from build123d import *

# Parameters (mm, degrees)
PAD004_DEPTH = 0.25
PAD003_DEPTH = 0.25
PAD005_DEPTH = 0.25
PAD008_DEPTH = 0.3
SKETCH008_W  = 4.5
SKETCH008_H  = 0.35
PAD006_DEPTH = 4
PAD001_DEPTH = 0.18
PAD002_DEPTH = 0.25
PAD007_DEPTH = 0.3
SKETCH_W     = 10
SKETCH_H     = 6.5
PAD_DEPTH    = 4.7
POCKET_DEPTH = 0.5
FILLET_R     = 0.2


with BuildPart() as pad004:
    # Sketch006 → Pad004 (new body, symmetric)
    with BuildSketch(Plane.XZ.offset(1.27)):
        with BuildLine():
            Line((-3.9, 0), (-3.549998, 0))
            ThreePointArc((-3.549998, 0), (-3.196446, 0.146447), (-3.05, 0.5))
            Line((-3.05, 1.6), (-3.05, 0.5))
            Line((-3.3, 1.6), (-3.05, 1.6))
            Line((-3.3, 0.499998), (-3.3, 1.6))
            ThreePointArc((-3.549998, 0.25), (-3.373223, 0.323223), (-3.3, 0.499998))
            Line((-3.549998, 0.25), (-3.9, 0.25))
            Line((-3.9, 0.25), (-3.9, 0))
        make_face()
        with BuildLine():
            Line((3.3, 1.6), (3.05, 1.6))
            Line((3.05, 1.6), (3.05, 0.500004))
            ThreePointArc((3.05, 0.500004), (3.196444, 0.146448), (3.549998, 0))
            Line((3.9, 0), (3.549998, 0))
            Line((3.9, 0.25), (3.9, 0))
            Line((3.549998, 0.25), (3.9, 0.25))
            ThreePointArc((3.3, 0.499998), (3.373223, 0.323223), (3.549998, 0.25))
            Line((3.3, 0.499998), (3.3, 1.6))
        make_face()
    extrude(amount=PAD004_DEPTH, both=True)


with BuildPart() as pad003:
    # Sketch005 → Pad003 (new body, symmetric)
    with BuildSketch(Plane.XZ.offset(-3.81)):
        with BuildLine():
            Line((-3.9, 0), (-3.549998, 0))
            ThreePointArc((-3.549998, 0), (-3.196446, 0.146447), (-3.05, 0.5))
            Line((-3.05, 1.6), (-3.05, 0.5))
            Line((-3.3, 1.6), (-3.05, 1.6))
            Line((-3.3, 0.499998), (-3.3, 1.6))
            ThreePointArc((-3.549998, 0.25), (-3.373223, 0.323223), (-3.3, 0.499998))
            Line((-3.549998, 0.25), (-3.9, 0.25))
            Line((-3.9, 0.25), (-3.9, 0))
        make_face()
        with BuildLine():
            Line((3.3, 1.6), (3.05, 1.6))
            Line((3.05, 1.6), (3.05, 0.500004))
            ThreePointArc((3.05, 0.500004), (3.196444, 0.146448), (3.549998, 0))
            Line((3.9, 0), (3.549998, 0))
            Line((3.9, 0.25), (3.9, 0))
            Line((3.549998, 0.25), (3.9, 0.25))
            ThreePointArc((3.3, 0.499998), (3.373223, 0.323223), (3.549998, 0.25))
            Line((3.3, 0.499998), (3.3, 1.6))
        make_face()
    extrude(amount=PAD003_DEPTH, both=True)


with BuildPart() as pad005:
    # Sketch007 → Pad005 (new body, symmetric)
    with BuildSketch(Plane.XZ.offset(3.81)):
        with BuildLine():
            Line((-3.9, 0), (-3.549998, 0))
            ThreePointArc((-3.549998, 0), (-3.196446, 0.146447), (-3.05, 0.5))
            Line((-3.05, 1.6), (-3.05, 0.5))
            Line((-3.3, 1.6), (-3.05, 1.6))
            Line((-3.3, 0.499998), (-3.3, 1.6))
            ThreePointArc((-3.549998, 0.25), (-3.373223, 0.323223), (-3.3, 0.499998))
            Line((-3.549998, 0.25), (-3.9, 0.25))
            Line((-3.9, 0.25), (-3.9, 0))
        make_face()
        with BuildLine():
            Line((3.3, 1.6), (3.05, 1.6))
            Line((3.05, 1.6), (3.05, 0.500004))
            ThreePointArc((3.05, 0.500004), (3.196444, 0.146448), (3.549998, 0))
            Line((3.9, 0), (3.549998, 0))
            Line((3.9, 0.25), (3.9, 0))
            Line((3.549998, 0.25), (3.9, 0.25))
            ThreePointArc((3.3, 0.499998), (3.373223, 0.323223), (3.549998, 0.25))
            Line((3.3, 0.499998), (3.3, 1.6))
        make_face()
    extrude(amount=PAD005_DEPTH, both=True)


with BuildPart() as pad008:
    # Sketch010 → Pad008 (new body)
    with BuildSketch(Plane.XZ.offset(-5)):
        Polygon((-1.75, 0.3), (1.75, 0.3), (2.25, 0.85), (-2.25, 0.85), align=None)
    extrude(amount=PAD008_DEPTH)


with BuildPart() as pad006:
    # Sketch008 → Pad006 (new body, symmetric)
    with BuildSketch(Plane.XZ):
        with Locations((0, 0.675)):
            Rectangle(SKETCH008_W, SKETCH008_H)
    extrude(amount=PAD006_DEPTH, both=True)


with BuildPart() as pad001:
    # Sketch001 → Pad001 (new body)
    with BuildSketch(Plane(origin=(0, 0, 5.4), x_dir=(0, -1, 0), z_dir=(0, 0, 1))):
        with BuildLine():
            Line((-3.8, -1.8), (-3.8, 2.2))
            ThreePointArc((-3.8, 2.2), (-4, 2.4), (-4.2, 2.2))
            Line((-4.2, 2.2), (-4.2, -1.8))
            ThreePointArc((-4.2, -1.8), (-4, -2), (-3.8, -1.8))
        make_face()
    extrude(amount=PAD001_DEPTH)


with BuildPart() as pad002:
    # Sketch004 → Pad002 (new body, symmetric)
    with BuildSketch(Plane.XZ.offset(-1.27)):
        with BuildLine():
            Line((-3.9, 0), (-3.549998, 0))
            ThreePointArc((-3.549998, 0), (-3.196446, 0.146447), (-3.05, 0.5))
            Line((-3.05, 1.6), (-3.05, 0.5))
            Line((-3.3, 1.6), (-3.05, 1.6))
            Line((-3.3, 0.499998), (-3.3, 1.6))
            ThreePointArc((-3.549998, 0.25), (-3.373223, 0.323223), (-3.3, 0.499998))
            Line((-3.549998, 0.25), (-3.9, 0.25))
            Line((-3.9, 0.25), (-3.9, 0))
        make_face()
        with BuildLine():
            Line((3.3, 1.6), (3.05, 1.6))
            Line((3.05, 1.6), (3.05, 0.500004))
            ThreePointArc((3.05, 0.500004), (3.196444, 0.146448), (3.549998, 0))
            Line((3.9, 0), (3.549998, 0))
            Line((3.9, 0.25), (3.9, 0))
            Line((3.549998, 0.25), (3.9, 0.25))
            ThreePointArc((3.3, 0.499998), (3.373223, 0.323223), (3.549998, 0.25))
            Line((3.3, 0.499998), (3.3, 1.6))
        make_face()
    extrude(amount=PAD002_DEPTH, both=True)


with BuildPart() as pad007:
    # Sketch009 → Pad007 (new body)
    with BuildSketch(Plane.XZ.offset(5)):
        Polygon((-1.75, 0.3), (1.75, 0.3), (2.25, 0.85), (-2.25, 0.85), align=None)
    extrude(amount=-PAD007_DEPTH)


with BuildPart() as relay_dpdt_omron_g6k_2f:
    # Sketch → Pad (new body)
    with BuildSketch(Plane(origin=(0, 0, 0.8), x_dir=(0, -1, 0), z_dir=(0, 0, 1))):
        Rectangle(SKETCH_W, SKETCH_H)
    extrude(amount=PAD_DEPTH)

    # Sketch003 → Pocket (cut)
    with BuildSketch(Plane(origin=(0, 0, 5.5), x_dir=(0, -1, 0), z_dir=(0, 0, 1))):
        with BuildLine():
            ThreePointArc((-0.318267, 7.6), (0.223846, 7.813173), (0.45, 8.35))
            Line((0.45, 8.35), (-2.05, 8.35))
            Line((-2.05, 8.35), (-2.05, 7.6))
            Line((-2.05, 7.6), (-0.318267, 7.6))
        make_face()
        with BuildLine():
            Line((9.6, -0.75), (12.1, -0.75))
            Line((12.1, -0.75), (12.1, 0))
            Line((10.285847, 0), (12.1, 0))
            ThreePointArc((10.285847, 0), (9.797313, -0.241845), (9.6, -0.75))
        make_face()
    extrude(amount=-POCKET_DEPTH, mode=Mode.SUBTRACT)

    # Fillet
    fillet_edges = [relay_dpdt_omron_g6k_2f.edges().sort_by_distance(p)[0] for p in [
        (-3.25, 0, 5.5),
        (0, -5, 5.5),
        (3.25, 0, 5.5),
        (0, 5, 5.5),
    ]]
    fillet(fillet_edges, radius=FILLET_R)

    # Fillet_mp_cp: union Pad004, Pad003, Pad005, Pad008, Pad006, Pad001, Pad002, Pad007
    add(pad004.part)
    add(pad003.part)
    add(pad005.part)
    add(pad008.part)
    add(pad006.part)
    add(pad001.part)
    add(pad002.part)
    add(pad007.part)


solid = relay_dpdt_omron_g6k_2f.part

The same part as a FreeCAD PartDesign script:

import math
import FreeCAD as App
import Part
import Sketcher
from FreeCAD import Vector


def edges_at(feature, points):
    """Names of the edges that pass closest to the given points."""
    edges = feature.Shape.Edges
    near = lambda p: min(range(len(edges)), key=lambda i: edges[i].distToShape(Part.Vertex(*p))[0])
    return sorted({f"Edge{near(p) + 1}" for p in points})


def add_polygon(sketch, points):
    """Adds a closed chain of lines whose ends are joined by coincident constraints."""
    first, n = sketch.GeometryCount, len(points)
    for a, b in zip(points, points[1:] + points[:1]):
        sketch.addGeometry(Part.LineSegment(App.Vector(*a, 0), App.Vector(*b, 0)), False)
    for i in range(n):
        sketch.addConstraint(Sketcher.Constraint("Coincident", first + i, 2, first + (i + 1) % n, 1))

doc = App.newDocument("Part")
body = doc.addObject("PartDesign::Body", "Body")
body.AllowCompound = True

sketch1 = body.newObject("Sketcher::SketchObject", "Sketch")
sketch1.AttachmentSupport = (doc.getObject("XZ_Plane"), [""])
sketch1.MapMode = "FlatFace"
sketch1.AttachmentOffset = App.Placement(Vector(0, 0, 1.27), App.Rotation())
sketch1.addGeometry(Part.LineSegment(Vector(-3.9, 0, 0), Vector(-3.55, 0, 0)), False)
sketch1.addGeometry(Part.ArcOfCircle(Part.Circle(Vector(-3.55, 0.5, 0), Vector(0, 0, 1), 0.5), math.radians(-90), math.radians(0)), False)
sketch1.addGeometry(Part.LineSegment(Vector(-3.05, 0.5, 0), Vector(-3.05, 1.6, 0)), False)
sketch1.addGeometry(Part.LineSegment(Vector(-3.05, 1.6, 0), Vector(-3.3, 1.6, 0)), False)
sketch1.addGeometry(Part.LineSegment(Vector(-3.3, 1.6, 0), Vector(-3.3, 0.5, 0)), False)
sketch1.addGeometry(Part.ArcOfCircle(Part.Circle(Vector(-3.55, 0.5, 0), Vector(0, 0, 1), 0.25), math.radians(-90), math.radians(0)), False)
sketch1.addGeometry(Part.LineSegment(Vector(-3.55, 0.25, 0), Vector(-3.9, 0.25, 0)), False)
sketch1.addGeometry(Part.LineSegment(Vector(-3.9, 0.25, 0), Vector(-3.9, 0, 0)), False)
sketch1.addGeometry(Part.LineSegment(Vector(3.3, 1.6, 0), Vector(3.05, 1.6, 0)), False)
sketch1.addGeometry(Part.LineSegment(Vector(3.05, 1.6, 0), Vector(3.05, 0.5, 0)), False)
sketch1.addGeometry(Part.ArcOfCircle(Part.Circle(Vector(3.55, 0.5, 0), Vector(0, 0, 1), 0.5), math.radians(180), math.radians(270)), False)
sketch1.addGeometry(Part.LineSegment(Vector(3.55, 0, 0), Vector(3.9, 0, 0)), False)
sketch1.addGeometry(Part.LineSegment(Vector(3.9, 0, 0), Vector(3.9, 0.25, 0)), False)
sketch1.addGeometry(Part.LineSegment(Vector(3.9, 0.25, 0), Vector(3.55, 0.25, 0)), False)
sketch1.addGeometry(Part.ArcOfCircle(Part.Circle(Vector(3.55, 0.5, 0), Vector(0, 0, 1), 0.25), math.radians(-180), math.radians(-90)), False)
sketch1.addGeometry(Part.LineSegment(Vector(3.3, 0.5, 0), Vector(3.3, 1.6, 0)), False)
sketch1.addConstraint(Sketcher.Constraint("Coincident", 0, 2, 1, 1))
sketch1.addConstraint(Sketcher.Constraint("Tangent", 1, 2, 2, 1))
sketch1.addConstraint(Sketcher.Constraint("Coincident", 2, 2, 3, 1))
sketch1.addConstraint(Sketcher.Constraint("Coincident", 3, 2, 4, 1))
sketch1.addConstraint(Sketcher.Constraint("Coincident", 4, 2, 5, 2))
sketch1.addConstraint(Sketcher.Constraint("Coincident", 5, 1, 6, 1))
sketch1.addConstraint(Sketcher.Constraint("Coincident", 6, 2, 7, 1))
sketch1.addConstraint(Sketcher.Constraint("Coincident", 7, 2, 0, 1))
sketch1.addConstraint(Sketcher.Constraint("Coincident", 8, 2, 9, 1))
sketch1.addConstraint(Sketcher.Constraint("Coincident", 9, 2, 10, 1))
sketch1.addConstraint(Sketcher.Constraint("Tangent", 10, 2, 11, 1))
sketch1.addConstraint(Sketcher.Constraint("Coincident", 11, 2, 12, 1))
sketch1.addConstraint(Sketcher.Constraint("Coincident", 12, 2, 13, 1))
sketch1.addConstraint(Sketcher.Constraint("Coincident", 13, 2, 14, 2))
sketch1.addConstraint(Sketcher.Constraint("Coincident", 14, 1, 15, 1))
sketch1.addConstraint(Sketcher.Constraint("Coincident", 15, 2, 8, 1))
sketch1.addConstraint(Sketcher.Constraint("Horizontal", 0))
sketch1.addConstraint(Sketcher.Constraint("Vertical", 2))
sketch1.addConstraint(Sketcher.Constraint("Horizontal", 3))
sketch1.addConstraint(Sketcher.Constraint("Vertical", 4))
sketch1.addConstraint(Sketcher.Constraint("Horizontal", 6))
sketch1.addConstraint(Sketcher.Constraint("Vertical", 7))
sketch1.addConstraint(Sketcher.Constraint("Horizontal", 8))
sketch1.addConstraint(Sketcher.Constraint("Vertical", 9))
sketch1.addConstraint(Sketcher.Constraint("Horizontal", 11))
sketch1.addConstraint(Sketcher.Constraint("Vertical", 12))
sketch1.addConstraint(Sketcher.Constraint("Horizontal", 13))
sketch1.addConstraint(Sketcher.Constraint("Vertical", 15))
sketch1.addConstraint(Sketcher.Constraint("Coincident", 5, 3, 1, 3))
sketch1.addConstraint(Sketcher.Constraint("Coincident", 14, 3, 10, 3))
sketch1.addConstraint(Sketcher.Constraint("Equal", 1, 10))
sketch1.addConstraint(Sketcher.Constraint("Equal", 5, 14))
sketch1.addConstraint(Sketcher.Constraint("Symmetric", 0, 2, 10, 2, -1, 1))
sketch1.addConstraint(Sketcher.Constraint("Symmetric", 1, 3, 10, 3, -2))
sketch1.addConstraint(Sketcher.Constraint("Horizontal", 14, 3, 4, 2))
sketch1.addConstraint(Sketcher.Constraint("Horizontal", 3, 2, 8, 2))
sketch1.addConstraint(Sketcher.Constraint("Horizontal", 4, 2, 14, 1))
sketch1.addConstraint(Sketcher.Constraint("Vertical", 0, 2, 5, 1))
sketch1.addConstraint(Sketcher.Constraint("Vertical", 10, 2, 13, 2))
sketch1.addConstraint(Sketcher.Constraint("Equal", 6, 11))
sketch1.addConstraint(Sketcher.Constraint("Radius", 1, 0.5))
sketch1.addConstraint(Sketcher.Constraint("Radius", 5, 0.249999))
sketch1.addConstraint(Sketcher.Constraint("DistanceY", 2, 1, 2, 2, 1.1))
sketch1.addConstraint(Sketcher.Constraint("DistanceX", 0, 1, 0, 2, 0.350002))
sketch1.addConstraint(Sketcher.Constraint("DistanceX", 3, 2, -1, 1, 3.3))
sketch1.addConstraint(Sketcher.Constraint("DistanceY", 9, 2, 9, 1, 1.099996))
pad1 = body.newObject("PartDesign::Pad", "Pad")
pad1.Profile = sketch1
pad1.Length = 0.5
pad1.Midplane = True
body2 = doc.addObject("PartDesign::Body", "Body001")
body2.AllowCompound = True

sketch2 = body2.newObject("Sketcher::SketchObject", "Sketch001")
sketch2.AttachmentSupport = (doc.getObject("XZ_Plane001"), [""])
sketch2.MapMode = "FlatFace"
sketch2.AttachmentOffset = App.Placement(Vector(0, 0, -3.81), App.Rotation())
sketch2.addGeometry(Part.LineSegment(Vector(-3.9, 0, 0), Vector(-3.55, 0, 0)), False)
sketch2.addGeometry(Part.ArcOfCircle(Part.Circle(Vector(-3.55, 0.5, 0), Vector(0, 0, 1), 0.5), math.radians(-90), math.radians(0)), False)
sketch2.addGeometry(Part.LineSegment(Vector(-3.05, 0.5, 0), Vector(-3.05, 1.6, 0)), False)
sketch2.addGeometry(Part.LineSegment(Vector(-3.05, 1.6, 0), Vector(-3.3, 1.6, 0)), False)
sketch2.addGeometry(Part.LineSegment(Vector(-3.3, 1.6, 0), Vector(-3.3, 0.5, 0)), False)
sketch2.addGeometry(Part.ArcOfCircle(Part.Circle(Vector(-3.55, 0.5, 0), Vector(0, 0, 1), 0.25), math.radians(-90), math.radians(0)), False)
sketch2.addGeometry(Part.LineSegment(Vector(-3.55, 0.25, 0), Vector(-3.9, 0.25, 0)), False)
sketch2.addGeometry(Part.LineSegment(Vector(-3.9, 0.25, 0), Vector(-3.9, 0, 0)), False)
sketch2.addGeometry(Part.LineSegment(Vector(3.3, 1.6, 0), Vector(3.05, 1.6, 0)), False)
sketch2.addGeometry(Part.LineSegment(Vector(3.05, 1.6, 0), Vector(3.05, 0.5, 0)), False)
sketch2.addGeometry(Part.ArcOfCircle(Part.Circle(Vector(3.55, 0.5, 0), Vector(0, 0, 1), 0.5), math.radians(180), math.radians(270)), False)
sketch2.addGeometry(Part.LineSegment(Vector(3.55, 0, 0), Vector(3.9, 0, 0)), False)
sketch2.addGeometry(Part.LineSegment(Vector(3.9, 0, 0), Vector(3.9, 0.25, 0)), False)
sketch2.addGeometry(Part.LineSegment(Vector(3.9, 0.25, 0), Vector(3.55, 0.25, 0)), False)
sketch2.addGeometry(Part.ArcOfCircle(Part.Circle(Vector(3.55, 0.5, 0), Vector(0, 0, 1), 0.25), math.radians(-180), math.radians(-90)), False)
sketch2.addGeometry(Part.LineSegment(Vector(3.3, 0.5, 0), Vector(3.3, 1.6, 0)), False)
sketch2.addConstraint(Sketcher.Constraint("Coincident", 0, 2, 1, 1))
sketch2.addConstraint(Sketcher.Constraint("Tangent", 1, 2, 2, 1))
sketch2.addConstraint(Sketcher.Constraint("Coincident", 2, 2, 3, 1))
sketch2.addConstraint(Sketcher.Constraint("Coincident", 3, 2, 4, 1))
sketch2.addConstraint(Sketcher.Constraint("Coincident", 4, 2, 5, 2))
sketch2.addConstraint(Sketcher.Constraint("Coincident", 5, 1, 6, 1))
sketch2.addConstraint(Sketcher.Constraint("Coincident", 6, 2, 7, 1))
sketch2.addConstraint(Sketcher.Constraint("Coincident", 7, 2, 0, 1))
sketch2.addConstraint(Sketcher.Constraint("Coincident", 8, 2, 9, 1))
sketch2.addConstraint(Sketcher.Constraint("Coincident", 9, 2, 10, 1))
sketch2.addConstraint(Sketcher.Constraint("Tangent", 10, 2, 11, 1))
sketch2.addConstraint(Sketcher.Constraint("Coincident", 11, 2, 12, 1))
sketch2.addConstraint(Sketcher.Constraint("Coincident", 12, 2, 13, 1))
sketch2.addConstraint(Sketcher.Constraint("Coincident", 13, 2, 14, 2))
sketch2.addConstraint(Sketcher.Constraint("Coincident", 14, 1, 15, 1))
sketch2.addConstraint(Sketcher.Constraint("Coincident", 15, 2, 8, 1))
sketch2.addConstraint(Sketcher.Constraint("Horizontal", 0))
sketch2.addConstraint(Sketcher.Constraint("Vertical", 2))
sketch2.addConstraint(Sketcher.Constraint("Horizontal", 3))
sketch2.addConstraint(Sketcher.Constraint("Vertical", 4))
sketch2.addConstraint(Sketcher.Constraint("Horizontal", 6))
sketch2.addConstraint(Sketcher.Constraint("Vertical", 7))
sketch2.addConstraint(Sketcher.Constraint("Horizontal", 8))
sketch2.addConstraint(Sketcher.Constraint("Vertical", 9))
sketch2.addConstraint(Sketcher.Constraint("Horizontal", 11))
sketch2.addConstraint(Sketcher.Constraint("Vertical", 12))
sketch2.addConstraint(Sketcher.Constraint("Horizontal", 13))
sketch2.addConstraint(Sketcher.Constraint("Vertical", 15))
sketch2.addConstraint(Sketcher.Constraint("Coincident", 5, 3, 1, 3))
sketch2.addConstraint(Sketcher.Constraint("Coincident", 14, 3, 10, 3))
sketch2.addConstraint(Sketcher.Constraint("Equal", 1, 10))
sketch2.addConstraint(Sketcher.Constraint("Equal", 5, 14))
sketch2.addConstraint(Sketcher.Constraint("Symmetric", 0, 2, 10, 2, -1, 1))
sketch2.addConstraint(Sketcher.Constraint("Symmetric", 1, 3, 10, 3, -2))
sketch2.addConstraint(Sketcher.Constraint("Horizontal", 14, 3, 4, 2))
sketch2.addConstraint(Sketcher.Constraint("Horizontal", 3, 2, 8, 2))
sketch2.addConstraint(Sketcher.Constraint("Horizontal", 4, 2, 14, 1))
sketch2.addConstraint(Sketcher.Constraint("Vertical", 0, 2, 5, 1))
sketch2.addConstraint(Sketcher.Constraint("Vertical", 10, 2, 13, 2))
sketch2.addConstraint(Sketcher.Constraint("Equal", 6, 11))
sketch2.addConstraint(Sketcher.Constraint("Radius", 1, 0.5))
sketch2.addConstraint(Sketcher.Constraint("Radius", 5, 0.249999))
sketch2.addConstraint(Sketcher.Constraint("DistanceY", 2, 1, 2, 2, 1.1))
sketch2.addConstraint(Sketcher.Constraint("DistanceX", 0, 1, 0, 2, 0.350002))
sketch2.addConstraint(Sketcher.Constraint("DistanceX", 3, 2, -1, 1, 3.3))
sketch2.addConstraint(Sketcher.Constraint("DistanceY", 9, 2, 9, 1, 1.099996))
pad2 = body2.newObject("PartDesign::Pad", "Pad001")
pad2.Profile = sketch2
pad2.Length = 0.5
pad2.Midplane = True
body3 = doc.addObject("PartDesign::Body", "Body002")
body3.AllowCompound = True

sketch3 = body3.newObject("Sketcher::SketchObject", "Sketch002")
sketch3.AttachmentSupport = (doc.getObject("XZ_Plane002"), [""])
sketch3.MapMode = "FlatFace"
sketch3.AttachmentOffset = App.Placement(Vector(0, 0, 3.81), App.Rotation())
sketch3.addGeometry(Part.LineSegment(Vector(-3.9, 0, 0), Vector(-3.55, 0, 0)), False)
sketch3.addGeometry(Part.ArcOfCircle(Part.Circle(Vector(-3.55, 0.5, 0), Vector(0, 0, 1), 0.5), math.radians(-90), math.radians(0)), False)
sketch3.addGeometry(Part.LineSegment(Vector(-3.05, 0.5, 0), Vector(-3.05, 1.6, 0)), False)
sketch3.addGeometry(Part.LineSegment(Vector(-3.05, 1.6, 0), Vector(-3.3, 1.6, 0)), False)
sketch3.addGeometry(Part.LineSegment(Vector(-3.3, 1.6, 0), Vector(-3.3, 0.5, 0)), False)
sketch3.addGeometry(Part.ArcOfCircle(Part.Circle(Vector(-3.55, 0.5, 0), Vector(0, 0, 1), 0.25), math.radians(-90), math.radians(0)), False)
sketch3.addGeometry(Part.LineSegment(Vector(-3.55, 0.25, 0), Vector(-3.9, 0.25, 0)), False)
sketch3.addGeometry(Part.LineSegment(Vector(-3.9, 0.25, 0), Vector(-3.9, 0, 0)), False)
sketch3.addGeometry(Part.LineSegment(Vector(3.3, 1.6, 0), Vector(3.05, 1.6, 0)), False)
sketch3.addGeometry(Part.LineSegment(Vector(3.05, 1.6, 0), Vector(3.05, 0.5, 0)), False)
sketch3.addGeometry(Part.ArcOfCircle(Part.Circle(Vector(3.55, 0.5, 0), Vector(0, 0, 1), 0.5), math.radians(180), math.radians(270)), False)
sketch3.addGeometry(Part.LineSegment(Vector(3.55, 0, 0), Vector(3.9, 0, 0)), False)
sketch3.addGeometry(Part.LineSegment(Vector(3.9, 0, 0), Vector(3.9, 0.25, 0)), False)
sketch3.addGeometry(Part.LineSegment(Vector(3.9, 0.25, 0), Vector(3.55, 0.25, 0)), False)
sketch3.addGeometry(Part.ArcOfCircle(Part.Circle(Vector(3.55, 0.5, 0), Vector(0, 0, 1), 0.25), math.radians(-180), math.radians(-90)), False)
sketch3.addGeometry(Part.LineSegment(Vector(3.3, 0.5, 0), Vector(3.3, 1.6, 0)), False)
sketch3.addConstraint(Sketcher.Constraint("Coincident", 0, 2, 1, 1))
sketch3.addConstraint(Sketcher.Constraint("Tangent", 1, 2, 2, 1))
sketch3.addConstraint(Sketcher.Constraint("Coincident", 2, 2, 3, 1))
sketch3.addConstraint(Sketcher.Constraint("Coincident", 3, 2, 4, 1))
sketch3.addConstraint(Sketcher.Constraint("Coincident", 4, 2, 5, 2))
sketch3.addConstraint(Sketcher.Constraint("Coincident", 5, 1, 6, 1))
sketch3.addConstraint(Sketcher.Constraint("Coincident", 6, 2, 7, 1))
sketch3.addConstraint(Sketcher.Constraint("Coincident", 7, 2, 0, 1))
sketch3.addConstraint(Sketcher.Constraint("Coincident", 8, 2, 9, 1))
sketch3.addConstraint(Sketcher.Constraint("Coincident", 9, 2, 10, 1))
sketch3.addConstraint(Sketcher.Constraint("Tangent", 10, 2, 11, 1))
sketch3.addConstraint(Sketcher.Constraint("Coincident", 11, 2, 12, 1))
sketch3.addConstraint(Sketcher.Constraint("Coincident", 12, 2, 13, 1))
sketch3.addConstraint(Sketcher.Constraint("Coincident", 13, 2, 14, 2))
sketch3.addConstraint(Sketcher.Constraint("Coincident", 14, 1, 15, 1))
sketch3.addConstraint(Sketcher.Constraint("Coincident", 15, 2, 8, 1))
sketch3.addConstraint(Sketcher.Constraint("Horizontal", 0))
sketch3.addConstraint(Sketcher.Constraint("Vertical", 2))
sketch3.addConstraint(Sketcher.Constraint("Horizontal", 3))
sketch3.addConstraint(Sketcher.Constraint("Vertical", 4))
sketch3.addConstraint(Sketcher.Constraint("Horizontal", 6))
sketch3.addConstraint(Sketcher.Constraint("Vertical", 7))
sketch3.addConstraint(Sketcher.Constraint("Horizontal", 8))
sketch3.addConstraint(Sketcher.Constraint("Vertical", 9))
sketch3.addConstraint(Sketcher.Constraint("Horizontal", 11))
sketch3.addConstraint(Sketcher.Constraint("Vertical", 12))
sketch3.addConstraint(Sketcher.Constraint("Horizontal", 13))
sketch3.addConstraint(Sketcher.Constraint("Vertical", 15))
sketch3.addConstraint(Sketcher.Constraint("Coincident", 5, 3, 1, 3))
sketch3.addConstraint(Sketcher.Constraint("Coincident", 14, 3, 10, 3))
sketch3.addConstraint(Sketcher.Constraint("Equal", 1, 10))
sketch3.addConstraint(Sketcher.Constraint("Equal", 5, 14))
sketch3.addConstraint(Sketcher.Constraint("Symmetric", 0, 2, 10, 2, -1, 1))
sketch3.addConstraint(Sketcher.Constraint("Symmetric", 1, 3, 10, 3, -2))
sketch3.addConstraint(Sketcher.Constraint("Horizontal", 14, 3, 4, 2))
sketch3.addConstraint(Sketcher.Constraint("Horizontal", 3, 2, 8, 2))
sketch3.addConstraint(Sketcher.Constraint("Horizontal", 4, 2, 14, 1))
sketch3.addConstraint(Sketcher.Constraint("Vertical", 0, 2, 5, 1))
sketch3.addConstraint(Sketcher.Constraint("Vertical", 10, 2, 13, 2))
sketch3.addConstraint(Sketcher.Constraint("Equal", 6, 11))
sketch3.addConstraint(Sketcher.Constraint("Radius", 1, 0.5))
sketch3.addConstraint(Sketcher.Constraint("Radius", 5, 0.249999))
sketch3.addConstraint(Sketcher.Constraint("DistanceY", 2, 1, 2, 2, 1.1))
sketch3.addConstraint(Sketcher.Constraint("DistanceX", 0, 1, 0, 2, 0.350002))
sketch3.addConstraint(Sketcher.Constraint("DistanceX", 3, 2, -1, 1, 3.3))
sketch3.addConstraint(Sketcher.Constraint("DistanceY", 9, 2, 9, 1, 1.099996))
pad3 = body3.newObject("PartDesign::Pad", "Pad002")
pad3.Profile = sketch3
pad3.Length = 0.5
pad3.Midplane = True
body4 = doc.addObject("PartDesign::Body", "Body003")

sketch4 = body4.newObject("Sketcher::SketchObject", "Sketch003")
sketch4.AttachmentSupport = (doc.getObject("XZ_Plane003"), [""])
sketch4.MapMode = "FlatFace"
sketch4.AttachmentOffset = App.Placement(Vector(0, 0, -5), App.Rotation())
add_polygon(sketch4, [(-1.8, 0.3), (1.8, 0.3), (2.2, 0.8), (-2.2, 0.8)])
sketch4.addConstraint(Sketcher.Constraint("Horizontal", 0))
sketch4.addConstraint(Sketcher.Constraint("Horizontal", 2))
sketch4.addConstraint(Sketcher.Constraint("Equal", 1, 3))
sketch4.addConstraint(Sketcher.Constraint("DistanceX", 0, 1, 0, 2, 3.5))
sketch4.addConstraint(Sketcher.Constraint("DistanceX", 2, 2, 2, 1, 4.5))
sketch4.addConstraint(Sketcher.Constraint("DistanceY", -1, 1, 0, 2, 0.3))
sketch4.addConstraint(Sketcher.Constraint("DistanceX", -1, 1, 0, 2, 1.75))
sketch4.addConstraint(Sketcher.Constraint("DistanceY", -1, 1, 1, 2, 0.85))
pad4 = body4.newObject("PartDesign::Pad", "Pad003")
pad4.Profile = sketch4
pad4.Length = 0.3
body5 = doc.addObject("PartDesign::Body", "Body004")

sketch5 = body5.newObject("Sketcher::SketchObject", "Sketch004")
sketch5.AttachmentSupport = (doc.getObject("XZ_Plane004"), [""])
sketch5.MapMode = "FlatFace"
add_polygon(sketch5, [(-2.25, 0.85), (-2.25, 0.5), (2.25, 0.5), (2.25, 0.85)])
sketch5.addConstraint(Sketcher.Constraint("Vertical", 0))
sketch5.addConstraint(Sketcher.Constraint("Horizontal", 1))
sketch5.addConstraint(Sketcher.Constraint("Vertical", 2))
sketch5.addConstraint(Sketcher.Constraint("Horizontal", 3))
sketch5.addConstraint(Sketcher.Constraint("DistanceX", 1, 1, 1, 2, 4.5))
sketch5.addConstraint(Sketcher.Constraint("DistanceY", 0, 2, 0, 1, 0.35))
sketch5.addConstraint(Sketcher.Constraint("DistanceY", -1, 1, 0, 2, 0.5))
sketch5.addConstraint(Sketcher.Constraint("DistanceX", 0, 2, -1, 1, 2.25))
pad5 = body5.newObject("PartDesign::Pad", "Pad004")
pad5.Profile = sketch5
pad5.Length = 8
pad5.Midplane = True
body6 = doc.addObject("PartDesign::Body", "Body005")

sketch6 = body6.newObject("Sketcher::SketchObject", "Sketch005")
sketch6.AttachmentSupport = (doc.getObject("XY_Plane005"), [""])
sketch6.MapMode = "FlatFace"
sketch6.AttachmentOffset = App.Placement(Vector(0, 0, 5.4), App.Rotation())
sketch6.addGeometry(Part.LineSegment(Vector(-1.8, 3.8, 0), Vector(2.2, 3.8, 0)), False)
sketch6.addGeometry(Part.ArcOfCircle(Part.Circle(Vector(2.2, 4, 0), Vector(0, 0, 1), 0.2), math.radians(-90), math.radians(90)), False)
sketch6.addGeometry(Part.LineSegment(Vector(2.2, 4.2, 0), Vector(-1.8, 4.2, 0)), False)
sketch6.addGeometry(Part.ArcOfCircle(Part.Circle(Vector(-1.8, 4, 0), Vector(0, 0, 1), 0.2), math.radians(90), math.radians(270)), False)
sketch6.addConstraint(Sketcher.Constraint("Tangent", 0, 2, 1, 1))
sketch6.addConstraint(Sketcher.Constraint("Tangent", 1, 2, 2, 1))
sketch6.addConstraint(Sketcher.Constraint("Tangent", 2, 2, 3, 1))
sketch6.addConstraint(Sketcher.Constraint("Tangent", 3, 2, 0, 1))
sketch6.addConstraint(Sketcher.Constraint("Horizontal", 0))
sketch6.addConstraint(Sketcher.Constraint("Horizontal", 2))
sketch6.addConstraint(Sketcher.Constraint("Radius", 1, 0.2))
sketch6.addConstraint(Sketcher.Constraint("DistanceX", 0, 1, 0, 2, 4.0))
sketch6.addConstraint(Sketcher.Constraint("DistanceY", -1, 1, 1, 3, 4.0))
sketch6.addConstraint(Sketcher.Constraint("DistanceX", -1, 1, 1, 3, 2.2))
pad6 = body6.newObject("PartDesign::Pad", "Pad005")
pad6.Profile = sketch6
pad6.Length = 0.18
body7 = doc.addObject("PartDesign::Body", "Body006")
body7.AllowCompound = True

sketch7 = body7.newObject("Sketcher::SketchObject", "Sketch006")
sketch7.AttachmentSupport = (doc.getObject("XZ_Plane006"), [""])
sketch7.MapMode = "FlatFace"
sketch7.AttachmentOffset = App.Placement(Vector(0, 0, -1.27), App.Rotation())
sketch7.addGeometry(Part.LineSegment(Vector(-3.9, 0, 0), Vector(-3.55, 0, 0)), False)
sketch7.addGeometry(Part.ArcOfCircle(Part.Circle(Vector(-3.55, 0.5, 0), Vector(0, 0, 1), 0.5), math.radians(-90), math.radians(0)), False)
sketch7.addGeometry(Part.LineSegment(Vector(-3.05, 0.5, 0), Vector(-3.05, 1.6, 0)), False)
sketch7.addGeometry(Part.LineSegment(Vector(-3.05, 1.6, 0), Vector(-3.3, 1.6, 0)), False)
sketch7.addGeometry(Part.LineSegment(Vector(-3.3, 1.6, 0), Vector(-3.3, 0.5, 0)), False)
sketch7.addGeometry(Part.ArcOfCircle(Part.Circle(Vector(-3.55, 0.5, 0), Vector(0, 0, 1), 0.25), math.radians(-90), math.radians(0)), False)
sketch7.addGeometry(Part.LineSegment(Vector(-3.55, 0.25, 0), Vector(-3.9, 0.25, 0)), False)
sketch7.addGeometry(Part.LineSegment(Vector(-3.9, 0.25, 0), Vector(-3.9, 0, 0)), False)
sketch7.addGeometry(Part.LineSegment(Vector(3.3, 1.6, 0), Vector(3.05, 1.6, 0)), False)
sketch7.addGeometry(Part.LineSegment(Vector(3.05, 1.6, 0), Vector(3.05, 0.5, 0)), False)
sketch7.addGeometry(Part.ArcOfCircle(Part.Circle(Vector(3.55, 0.5, 0), Vector(0, 0, 1), 0.5), math.radians(180), math.radians(270)), False)
sketch7.addGeometry(Part.LineSegment(Vector(3.55, 0, 0), Vector(3.9, 0, 0)), False)
sketch7.addGeometry(Part.LineSegment(Vector(3.9, 0, 0), Vector(3.9, 0.25, 0)), False)
sketch7.addGeometry(Part.LineSegment(Vector(3.9, 0.25, 0), Vector(3.55, 0.25, 0)), False)
sketch7.addGeometry(Part.ArcOfCircle(Part.Circle(Vector(3.55, 0.5, 0), Vector(0, 0, 1), 0.25), math.radians(-180), math.radians(-90)), False)
sketch7.addGeometry(Part.LineSegment(Vector(3.3, 0.5, 0), Vector(3.3, 1.6, 0)), False)
sketch7.addConstraint(Sketcher.Constraint("Coincident", 0, 2, 1, 1))
sketch7.addConstraint(Sketcher.Constraint("Tangent", 1, 2, 2, 1))
sketch7.addConstraint(Sketcher.Constraint("Coincident", 2, 2, 3, 1))
sketch7.addConstraint(Sketcher.Constraint("Coincident", 3, 2, 4, 1))
sketch7.addConstraint(Sketcher.Constraint("Coincident", 4, 2, 5, 2))
sketch7.addConstraint(Sketcher.Constraint("Coincident", 5, 1, 6, 1))
sketch7.addConstraint(Sketcher.Constraint("Coincident", 6, 2, 7, 1))
sketch7.addConstraint(Sketcher.Constraint("Coincident", 7, 2, 0, 1))
sketch7.addConstraint(Sketcher.Constraint("Coincident", 8, 2, 9, 1))
sketch7.addConstraint(Sketcher.Constraint("Coincident", 9, 2, 10, 1))
sketch7.addConstraint(Sketcher.Constraint("Tangent", 10, 2, 11, 1))
sketch7.addConstraint(Sketcher.Constraint("Coincident", 11, 2, 12, 1))
sketch7.addConstraint(Sketcher.Constraint("Coincident", 12, 2, 13, 1))
sketch7.addConstraint(Sketcher.Constraint("Coincident", 13, 2, 14, 2))
sketch7.addConstraint(Sketcher.Constraint("Coincident", 14, 1, 15, 1))
sketch7.addConstraint(Sketcher.Constraint("Coincident", 15, 2, 8, 1))
sketch7.addConstraint(Sketcher.Constraint("Horizontal", 0))
sketch7.addConstraint(Sketcher.Constraint("Vertical", 2))
sketch7.addConstraint(Sketcher.Constraint("Horizontal", 3))
sketch7.addConstraint(Sketcher.Constraint("Vertical", 4))
sketch7.addConstraint(Sketcher.Constraint("Horizontal", 6))
sketch7.addConstraint(Sketcher.Constraint("Vertical", 7))
sketch7.addConstraint(Sketcher.Constraint("Horizontal", 8))
sketch7.addConstraint(Sketcher.Constraint("Vertical", 9))
sketch7.addConstraint(Sketcher.Constraint("Horizontal", 11))
sketch7.addConstraint(Sketcher.Constraint("Vertical", 12))
sketch7.addConstraint(Sketcher.Constraint("Horizontal", 13))
sketch7.addConstraint(Sketcher.Constraint("Vertical", 15))
sketch7.addConstraint(Sketcher.Constraint("Coincident", 5, 3, 1, 3))
sketch7.addConstraint(Sketcher.Constraint("Coincident", 14, 3, 10, 3))
sketch7.addConstraint(Sketcher.Constraint("Equal", 1, 10))
sketch7.addConstraint(Sketcher.Constraint("Equal", 5, 14))
sketch7.addConstraint(Sketcher.Constraint("Symmetric", 0, 2, 10, 2, -1, 1))
sketch7.addConstraint(Sketcher.Constraint("Symmetric", 1, 3, 10, 3, -2))
sketch7.addConstraint(Sketcher.Constraint("Horizontal", 14, 3, 4, 2))
sketch7.addConstraint(Sketcher.Constraint("Horizontal", 3, 2, 8, 2))
sketch7.addConstraint(Sketcher.Constraint("Horizontal", 4, 2, 14, 1))
sketch7.addConstraint(Sketcher.Constraint("Vertical", 0, 2, 5, 1))
sketch7.addConstraint(Sketcher.Constraint("Vertical", 10, 2, 13, 2))
sketch7.addConstraint(Sketcher.Constraint("Equal", 6, 11))
sketch7.addConstraint(Sketcher.Constraint("Radius", 1, 0.5))
sketch7.addConstraint(Sketcher.Constraint("Radius", 5, 0.249999))
sketch7.addConstraint(Sketcher.Constraint("DistanceY", 2, 1, 2, 2, 1.1))
sketch7.addConstraint(Sketcher.Constraint("DistanceX", 0, 1, 0, 2, 0.350002))
sketch7.addConstraint(Sketcher.Constraint("DistanceX", 3, 2, -1, 1, 3.3))
sketch7.addConstraint(Sketcher.Constraint("DistanceY", 9, 2, 9, 1, 1.099996))
pad7 = body7.newObject("PartDesign::Pad", "Pad006")
pad7.Profile = sketch7
pad7.Length = 0.5
pad7.Midplane = True
body8 = doc.addObject("PartDesign::Body", "Body007")

sketch8 = body8.newObject("Sketcher::SketchObject", "Sketch007")
sketch8.AttachmentSupport = (doc.getObject("XZ_Plane007"), [""])
sketch8.MapMode = "FlatFace"
sketch8.AttachmentOffset = App.Placement(Vector(0, 0, 5), App.Rotation())
add_polygon(sketch8, [(-1.8, 0.3), (1.8, 0.3), (2.2, 0.8), (-2.2, 0.8)])
sketch8.addConstraint(Sketcher.Constraint("Horizontal", 0))
sketch8.addConstraint(Sketcher.Constraint("Horizontal", 2))
sketch8.addConstraint(Sketcher.Constraint("Equal", 1, 3))
sketch8.addConstraint(Sketcher.Constraint("DistanceX", 0, 1, 0, 2, 3.5))
sketch8.addConstraint(Sketcher.Constraint("DistanceX", 2, 2, 2, 1, 4.5))
sketch8.addConstraint(Sketcher.Constraint("DistanceY", -1, 1, 0, 2, 0.3))
sketch8.addConstraint(Sketcher.Constraint("DistanceX", -1, 1, 0, 2, 1.75))
sketch8.addConstraint(Sketcher.Constraint("DistanceY", -1, 1, 1, 2, 0.85))
pad8 = body8.newObject("PartDesign::Pad", "Pad007")
pad8.Profile = sketch8
pad8.Length = 0.3
pad8.Reversed = True
body9 = doc.addObject("PartDesign::Body", "Body008")

sketch9 = body9.newObject("Sketcher::SketchObject", "Sketch008")
sketch9.AttachmentSupport = (doc.getObject("XY_Plane008"), [""])
sketch9.MapMode = "FlatFace"
sketch9.AttachmentOffset = App.Placement(Vector(0, 0, 0.8), App.Rotation())
add_polygon(sketch9, [(3, 5), (-3, 5), (-3, -5), (3, -5)])
sketch9.addConstraint(Sketcher.Constraint("Horizontal", 0))
sketch9.addConstraint(Sketcher.Constraint("Vertical", 1))
sketch9.addConstraint(Sketcher.Constraint("Horizontal", 2))
sketch9.addConstraint(Sketcher.Constraint("Vertical", 3))
sketch9.addConstraint(Sketcher.Constraint("Symmetric", 0, 2, 2, 2, -1, 1))
sketch9.addConstraint(Sketcher.Constraint("DistanceY", 1, 2, 1, 1, 10.0))
sketch9.addConstraint(Sketcher.Constraint("DistanceX", 0, 2, 0, 1, 6.5))
pad9 = body9.newObject("PartDesign::Pad", "Pad008")
pad9.Profile = sketch9
pad9.Length = 4.7

sketch10 = body9.newObject("Sketcher::SketchObject", "Sketch009")
sketch10.AttachmentSupport = (doc.getObject("XY_Plane008"), [""])
sketch10.MapMode = "FlatFace"
sketch10.AttachmentOffset = App.Placement(Vector(0, 0, 5.5), App.Rotation())
sketch10.addGeometry(Part.ArcOfCircle(Part.Circle(Vector(8.350001, 0.300218, 0), Vector(0, 0, 1), 0.750218), math.radians(178.621405), math.radians(269.999956)), False)
sketch10.addGeometry(Part.LineSegment(Vector(8.35, -0.45, 0), Vector(8.35, 2.05, 0)), False)
sketch10.addGeometry(Part.LineSegment(Vector(8.35, 2.05, 0), Vector(7.6, 2.05, 0)), False)
sketch10.addGeometry(Part.LineSegment(Vector(7.6, 2.05, 0), Vector(7.6, 0.318267, 0)), False)
sketch10.addGeometry(Part.LineSegment(Vector(-0.75, -9.6, 0), Vector(-0.75, -12.1, 0)), False)
sketch10.addGeometry(Part.LineSegment(Vector(-0.75, -12.1, 0), Vector(0, -12.1, 0)), False)
sketch10.addGeometry(Part.LineSegment(Vector(0, -12.1, 0), Vector(0, -10.285847, 0)), False)
sketch10.addGeometry(Part.ArcOfCircle(Part.Circle(Vector(-0.749999, -10.353, 0), Vector(0, 0, 1), 0.753), math.radians(5.116445), math.radians(90.000051)), False)
sketch10.addConstraint(Sketcher.Constraint("Coincident", 0, 2, 1, 1))
sketch10.addConstraint(Sketcher.Constraint("Coincident", 1, 2, 2, 1))
sketch10.addConstraint(Sketcher.Constraint("Coincident", 2, 2, 3, 1))
sketch10.addConstraint(Sketcher.Constraint("Coincident", 3, 2, 0, 1))
sketch10.addConstraint(Sketcher.Constraint("Coincident", 4, 2, 5, 1))
sketch10.addConstraint(Sketcher.Constraint("Coincident", 5, 2, 6, 1))
sketch10.addConstraint(Sketcher.Constraint("Coincident", 6, 2, 7, 1))
sketch10.addConstraint(Sketcher.Constraint("Coincident", 7, 2, 4, 1))
sketch10.addConstraint(Sketcher.Constraint("Vertical", 1))
sketch10.addConstraint(Sketcher.Constraint("Horizontal", 2))
sketch10.addConstraint(Sketcher.Constraint("Vertical", 3))
sketch10.addConstraint(Sketcher.Constraint("Vertical", 4))
sketch10.addConstraint(Sketcher.Constraint("Horizontal", 5))
sketch10.addConstraint(Sketcher.Constraint("Vertical", 6))
sketch10.addConstraint(Sketcher.Constraint("PointOnObject", 5, 2, -2))
sketch10.addConstraint(Sketcher.Constraint("DistanceY", 1, 1, 1, 2, 2.5))
sketch10.addConstraint(Sketcher.Constraint("DistanceY", 4, 2, 4, 1, 2.5))
sketch10.addConstraint(Sketcher.Constraint("Radius", 7, 0.753))
sketch10.addConstraint(Sketcher.Constraint("DistanceX", 2, 2, 2, 1, 0.75))
sketch10.addConstraint(Sketcher.Constraint("DistanceX", 5, 1, 5, 2, 0.75))
sketch10.addConstraint(Sketcher.Constraint("DistanceX", -1, 1, 2, 2, 7.6))
sketch10.addConstraint(Sketcher.Constraint("DistanceY", 4, 2, -1, 1, 12.1))
sketch10.addConstraint(Sketcher.Constraint("DistanceX", 7, 3, 0, 3, 9.1))
sketch10.addConstraint(Sketcher.Constraint("DistanceX", 7, 3, 0, 2, 9.099999))
sketch10.addConstraint(Sketcher.Constraint("DistanceY", 0, 2, -1, 1, 0.45))
sketch10.addConstraint(Sketcher.Constraint("Radius", 0, 0.750218))
pocket1 = body9.newObject("PartDesign::Pocket", "Pocket")
pocket1.Profile = sketch10
pocket1.Length = 0.5
doc.recompute()

fillet = body9.newObject("PartDesign::Fillet", "Fillet")
fillet.Base = (pocket1, edges_at(pocket1, [
    (-3.25, 0, 5.5),
    (0, -5, 5.5),
    (3.25, 0, 5.5),
    (0, 5, 5.5),
]))
fillet.Radius = 0.2
doc.recompute()

boolean = body9.newObject("PartDesign::Boolean", "Boolean")
boolean.Type = "Fuse"
boolean.addObjects([body])
doc.recompute()

boolean2 = body9.newObject("PartDesign::Boolean", "Boolean001")
boolean2.Type = "Fuse"
boolean2.addObjects([body2])
doc.recompute()

boolean3 = body9.newObject("PartDesign::Boolean", "Boolean002")
boolean3.Type = "Fuse"
boolean3.addObjects([body3])
doc.recompute()

boolean4 = body9.newObject("PartDesign::Boolean", "Boolean003")
boolean4.Type = "Fuse"
boolean4.addObjects([body4])
doc.recompute()

boolean5 = body9.newObject("PartDesign::Boolean", "Boolean004")
boolean5.Type = "Fuse"
boolean5.addObjects([body5])
doc.recompute()

boolean6 = body9.newObject("PartDesign::Boolean", "Boolean005")
boolean6.Type = "Fuse"
boolean6.addObjects([body6])
doc.recompute()

boolean7 = body9.newObject("PartDesign::Boolean", "Boolean006")
boolean7.Type = "Fuse"
boolean7.addObjects([body7])
doc.recompute()

boolean8 = body9.newObject("PartDesign::Boolean", "Boolean007")
boolean8.Type = "Fuse"
boolean8.addObjects([body8])

doc.recompute()
